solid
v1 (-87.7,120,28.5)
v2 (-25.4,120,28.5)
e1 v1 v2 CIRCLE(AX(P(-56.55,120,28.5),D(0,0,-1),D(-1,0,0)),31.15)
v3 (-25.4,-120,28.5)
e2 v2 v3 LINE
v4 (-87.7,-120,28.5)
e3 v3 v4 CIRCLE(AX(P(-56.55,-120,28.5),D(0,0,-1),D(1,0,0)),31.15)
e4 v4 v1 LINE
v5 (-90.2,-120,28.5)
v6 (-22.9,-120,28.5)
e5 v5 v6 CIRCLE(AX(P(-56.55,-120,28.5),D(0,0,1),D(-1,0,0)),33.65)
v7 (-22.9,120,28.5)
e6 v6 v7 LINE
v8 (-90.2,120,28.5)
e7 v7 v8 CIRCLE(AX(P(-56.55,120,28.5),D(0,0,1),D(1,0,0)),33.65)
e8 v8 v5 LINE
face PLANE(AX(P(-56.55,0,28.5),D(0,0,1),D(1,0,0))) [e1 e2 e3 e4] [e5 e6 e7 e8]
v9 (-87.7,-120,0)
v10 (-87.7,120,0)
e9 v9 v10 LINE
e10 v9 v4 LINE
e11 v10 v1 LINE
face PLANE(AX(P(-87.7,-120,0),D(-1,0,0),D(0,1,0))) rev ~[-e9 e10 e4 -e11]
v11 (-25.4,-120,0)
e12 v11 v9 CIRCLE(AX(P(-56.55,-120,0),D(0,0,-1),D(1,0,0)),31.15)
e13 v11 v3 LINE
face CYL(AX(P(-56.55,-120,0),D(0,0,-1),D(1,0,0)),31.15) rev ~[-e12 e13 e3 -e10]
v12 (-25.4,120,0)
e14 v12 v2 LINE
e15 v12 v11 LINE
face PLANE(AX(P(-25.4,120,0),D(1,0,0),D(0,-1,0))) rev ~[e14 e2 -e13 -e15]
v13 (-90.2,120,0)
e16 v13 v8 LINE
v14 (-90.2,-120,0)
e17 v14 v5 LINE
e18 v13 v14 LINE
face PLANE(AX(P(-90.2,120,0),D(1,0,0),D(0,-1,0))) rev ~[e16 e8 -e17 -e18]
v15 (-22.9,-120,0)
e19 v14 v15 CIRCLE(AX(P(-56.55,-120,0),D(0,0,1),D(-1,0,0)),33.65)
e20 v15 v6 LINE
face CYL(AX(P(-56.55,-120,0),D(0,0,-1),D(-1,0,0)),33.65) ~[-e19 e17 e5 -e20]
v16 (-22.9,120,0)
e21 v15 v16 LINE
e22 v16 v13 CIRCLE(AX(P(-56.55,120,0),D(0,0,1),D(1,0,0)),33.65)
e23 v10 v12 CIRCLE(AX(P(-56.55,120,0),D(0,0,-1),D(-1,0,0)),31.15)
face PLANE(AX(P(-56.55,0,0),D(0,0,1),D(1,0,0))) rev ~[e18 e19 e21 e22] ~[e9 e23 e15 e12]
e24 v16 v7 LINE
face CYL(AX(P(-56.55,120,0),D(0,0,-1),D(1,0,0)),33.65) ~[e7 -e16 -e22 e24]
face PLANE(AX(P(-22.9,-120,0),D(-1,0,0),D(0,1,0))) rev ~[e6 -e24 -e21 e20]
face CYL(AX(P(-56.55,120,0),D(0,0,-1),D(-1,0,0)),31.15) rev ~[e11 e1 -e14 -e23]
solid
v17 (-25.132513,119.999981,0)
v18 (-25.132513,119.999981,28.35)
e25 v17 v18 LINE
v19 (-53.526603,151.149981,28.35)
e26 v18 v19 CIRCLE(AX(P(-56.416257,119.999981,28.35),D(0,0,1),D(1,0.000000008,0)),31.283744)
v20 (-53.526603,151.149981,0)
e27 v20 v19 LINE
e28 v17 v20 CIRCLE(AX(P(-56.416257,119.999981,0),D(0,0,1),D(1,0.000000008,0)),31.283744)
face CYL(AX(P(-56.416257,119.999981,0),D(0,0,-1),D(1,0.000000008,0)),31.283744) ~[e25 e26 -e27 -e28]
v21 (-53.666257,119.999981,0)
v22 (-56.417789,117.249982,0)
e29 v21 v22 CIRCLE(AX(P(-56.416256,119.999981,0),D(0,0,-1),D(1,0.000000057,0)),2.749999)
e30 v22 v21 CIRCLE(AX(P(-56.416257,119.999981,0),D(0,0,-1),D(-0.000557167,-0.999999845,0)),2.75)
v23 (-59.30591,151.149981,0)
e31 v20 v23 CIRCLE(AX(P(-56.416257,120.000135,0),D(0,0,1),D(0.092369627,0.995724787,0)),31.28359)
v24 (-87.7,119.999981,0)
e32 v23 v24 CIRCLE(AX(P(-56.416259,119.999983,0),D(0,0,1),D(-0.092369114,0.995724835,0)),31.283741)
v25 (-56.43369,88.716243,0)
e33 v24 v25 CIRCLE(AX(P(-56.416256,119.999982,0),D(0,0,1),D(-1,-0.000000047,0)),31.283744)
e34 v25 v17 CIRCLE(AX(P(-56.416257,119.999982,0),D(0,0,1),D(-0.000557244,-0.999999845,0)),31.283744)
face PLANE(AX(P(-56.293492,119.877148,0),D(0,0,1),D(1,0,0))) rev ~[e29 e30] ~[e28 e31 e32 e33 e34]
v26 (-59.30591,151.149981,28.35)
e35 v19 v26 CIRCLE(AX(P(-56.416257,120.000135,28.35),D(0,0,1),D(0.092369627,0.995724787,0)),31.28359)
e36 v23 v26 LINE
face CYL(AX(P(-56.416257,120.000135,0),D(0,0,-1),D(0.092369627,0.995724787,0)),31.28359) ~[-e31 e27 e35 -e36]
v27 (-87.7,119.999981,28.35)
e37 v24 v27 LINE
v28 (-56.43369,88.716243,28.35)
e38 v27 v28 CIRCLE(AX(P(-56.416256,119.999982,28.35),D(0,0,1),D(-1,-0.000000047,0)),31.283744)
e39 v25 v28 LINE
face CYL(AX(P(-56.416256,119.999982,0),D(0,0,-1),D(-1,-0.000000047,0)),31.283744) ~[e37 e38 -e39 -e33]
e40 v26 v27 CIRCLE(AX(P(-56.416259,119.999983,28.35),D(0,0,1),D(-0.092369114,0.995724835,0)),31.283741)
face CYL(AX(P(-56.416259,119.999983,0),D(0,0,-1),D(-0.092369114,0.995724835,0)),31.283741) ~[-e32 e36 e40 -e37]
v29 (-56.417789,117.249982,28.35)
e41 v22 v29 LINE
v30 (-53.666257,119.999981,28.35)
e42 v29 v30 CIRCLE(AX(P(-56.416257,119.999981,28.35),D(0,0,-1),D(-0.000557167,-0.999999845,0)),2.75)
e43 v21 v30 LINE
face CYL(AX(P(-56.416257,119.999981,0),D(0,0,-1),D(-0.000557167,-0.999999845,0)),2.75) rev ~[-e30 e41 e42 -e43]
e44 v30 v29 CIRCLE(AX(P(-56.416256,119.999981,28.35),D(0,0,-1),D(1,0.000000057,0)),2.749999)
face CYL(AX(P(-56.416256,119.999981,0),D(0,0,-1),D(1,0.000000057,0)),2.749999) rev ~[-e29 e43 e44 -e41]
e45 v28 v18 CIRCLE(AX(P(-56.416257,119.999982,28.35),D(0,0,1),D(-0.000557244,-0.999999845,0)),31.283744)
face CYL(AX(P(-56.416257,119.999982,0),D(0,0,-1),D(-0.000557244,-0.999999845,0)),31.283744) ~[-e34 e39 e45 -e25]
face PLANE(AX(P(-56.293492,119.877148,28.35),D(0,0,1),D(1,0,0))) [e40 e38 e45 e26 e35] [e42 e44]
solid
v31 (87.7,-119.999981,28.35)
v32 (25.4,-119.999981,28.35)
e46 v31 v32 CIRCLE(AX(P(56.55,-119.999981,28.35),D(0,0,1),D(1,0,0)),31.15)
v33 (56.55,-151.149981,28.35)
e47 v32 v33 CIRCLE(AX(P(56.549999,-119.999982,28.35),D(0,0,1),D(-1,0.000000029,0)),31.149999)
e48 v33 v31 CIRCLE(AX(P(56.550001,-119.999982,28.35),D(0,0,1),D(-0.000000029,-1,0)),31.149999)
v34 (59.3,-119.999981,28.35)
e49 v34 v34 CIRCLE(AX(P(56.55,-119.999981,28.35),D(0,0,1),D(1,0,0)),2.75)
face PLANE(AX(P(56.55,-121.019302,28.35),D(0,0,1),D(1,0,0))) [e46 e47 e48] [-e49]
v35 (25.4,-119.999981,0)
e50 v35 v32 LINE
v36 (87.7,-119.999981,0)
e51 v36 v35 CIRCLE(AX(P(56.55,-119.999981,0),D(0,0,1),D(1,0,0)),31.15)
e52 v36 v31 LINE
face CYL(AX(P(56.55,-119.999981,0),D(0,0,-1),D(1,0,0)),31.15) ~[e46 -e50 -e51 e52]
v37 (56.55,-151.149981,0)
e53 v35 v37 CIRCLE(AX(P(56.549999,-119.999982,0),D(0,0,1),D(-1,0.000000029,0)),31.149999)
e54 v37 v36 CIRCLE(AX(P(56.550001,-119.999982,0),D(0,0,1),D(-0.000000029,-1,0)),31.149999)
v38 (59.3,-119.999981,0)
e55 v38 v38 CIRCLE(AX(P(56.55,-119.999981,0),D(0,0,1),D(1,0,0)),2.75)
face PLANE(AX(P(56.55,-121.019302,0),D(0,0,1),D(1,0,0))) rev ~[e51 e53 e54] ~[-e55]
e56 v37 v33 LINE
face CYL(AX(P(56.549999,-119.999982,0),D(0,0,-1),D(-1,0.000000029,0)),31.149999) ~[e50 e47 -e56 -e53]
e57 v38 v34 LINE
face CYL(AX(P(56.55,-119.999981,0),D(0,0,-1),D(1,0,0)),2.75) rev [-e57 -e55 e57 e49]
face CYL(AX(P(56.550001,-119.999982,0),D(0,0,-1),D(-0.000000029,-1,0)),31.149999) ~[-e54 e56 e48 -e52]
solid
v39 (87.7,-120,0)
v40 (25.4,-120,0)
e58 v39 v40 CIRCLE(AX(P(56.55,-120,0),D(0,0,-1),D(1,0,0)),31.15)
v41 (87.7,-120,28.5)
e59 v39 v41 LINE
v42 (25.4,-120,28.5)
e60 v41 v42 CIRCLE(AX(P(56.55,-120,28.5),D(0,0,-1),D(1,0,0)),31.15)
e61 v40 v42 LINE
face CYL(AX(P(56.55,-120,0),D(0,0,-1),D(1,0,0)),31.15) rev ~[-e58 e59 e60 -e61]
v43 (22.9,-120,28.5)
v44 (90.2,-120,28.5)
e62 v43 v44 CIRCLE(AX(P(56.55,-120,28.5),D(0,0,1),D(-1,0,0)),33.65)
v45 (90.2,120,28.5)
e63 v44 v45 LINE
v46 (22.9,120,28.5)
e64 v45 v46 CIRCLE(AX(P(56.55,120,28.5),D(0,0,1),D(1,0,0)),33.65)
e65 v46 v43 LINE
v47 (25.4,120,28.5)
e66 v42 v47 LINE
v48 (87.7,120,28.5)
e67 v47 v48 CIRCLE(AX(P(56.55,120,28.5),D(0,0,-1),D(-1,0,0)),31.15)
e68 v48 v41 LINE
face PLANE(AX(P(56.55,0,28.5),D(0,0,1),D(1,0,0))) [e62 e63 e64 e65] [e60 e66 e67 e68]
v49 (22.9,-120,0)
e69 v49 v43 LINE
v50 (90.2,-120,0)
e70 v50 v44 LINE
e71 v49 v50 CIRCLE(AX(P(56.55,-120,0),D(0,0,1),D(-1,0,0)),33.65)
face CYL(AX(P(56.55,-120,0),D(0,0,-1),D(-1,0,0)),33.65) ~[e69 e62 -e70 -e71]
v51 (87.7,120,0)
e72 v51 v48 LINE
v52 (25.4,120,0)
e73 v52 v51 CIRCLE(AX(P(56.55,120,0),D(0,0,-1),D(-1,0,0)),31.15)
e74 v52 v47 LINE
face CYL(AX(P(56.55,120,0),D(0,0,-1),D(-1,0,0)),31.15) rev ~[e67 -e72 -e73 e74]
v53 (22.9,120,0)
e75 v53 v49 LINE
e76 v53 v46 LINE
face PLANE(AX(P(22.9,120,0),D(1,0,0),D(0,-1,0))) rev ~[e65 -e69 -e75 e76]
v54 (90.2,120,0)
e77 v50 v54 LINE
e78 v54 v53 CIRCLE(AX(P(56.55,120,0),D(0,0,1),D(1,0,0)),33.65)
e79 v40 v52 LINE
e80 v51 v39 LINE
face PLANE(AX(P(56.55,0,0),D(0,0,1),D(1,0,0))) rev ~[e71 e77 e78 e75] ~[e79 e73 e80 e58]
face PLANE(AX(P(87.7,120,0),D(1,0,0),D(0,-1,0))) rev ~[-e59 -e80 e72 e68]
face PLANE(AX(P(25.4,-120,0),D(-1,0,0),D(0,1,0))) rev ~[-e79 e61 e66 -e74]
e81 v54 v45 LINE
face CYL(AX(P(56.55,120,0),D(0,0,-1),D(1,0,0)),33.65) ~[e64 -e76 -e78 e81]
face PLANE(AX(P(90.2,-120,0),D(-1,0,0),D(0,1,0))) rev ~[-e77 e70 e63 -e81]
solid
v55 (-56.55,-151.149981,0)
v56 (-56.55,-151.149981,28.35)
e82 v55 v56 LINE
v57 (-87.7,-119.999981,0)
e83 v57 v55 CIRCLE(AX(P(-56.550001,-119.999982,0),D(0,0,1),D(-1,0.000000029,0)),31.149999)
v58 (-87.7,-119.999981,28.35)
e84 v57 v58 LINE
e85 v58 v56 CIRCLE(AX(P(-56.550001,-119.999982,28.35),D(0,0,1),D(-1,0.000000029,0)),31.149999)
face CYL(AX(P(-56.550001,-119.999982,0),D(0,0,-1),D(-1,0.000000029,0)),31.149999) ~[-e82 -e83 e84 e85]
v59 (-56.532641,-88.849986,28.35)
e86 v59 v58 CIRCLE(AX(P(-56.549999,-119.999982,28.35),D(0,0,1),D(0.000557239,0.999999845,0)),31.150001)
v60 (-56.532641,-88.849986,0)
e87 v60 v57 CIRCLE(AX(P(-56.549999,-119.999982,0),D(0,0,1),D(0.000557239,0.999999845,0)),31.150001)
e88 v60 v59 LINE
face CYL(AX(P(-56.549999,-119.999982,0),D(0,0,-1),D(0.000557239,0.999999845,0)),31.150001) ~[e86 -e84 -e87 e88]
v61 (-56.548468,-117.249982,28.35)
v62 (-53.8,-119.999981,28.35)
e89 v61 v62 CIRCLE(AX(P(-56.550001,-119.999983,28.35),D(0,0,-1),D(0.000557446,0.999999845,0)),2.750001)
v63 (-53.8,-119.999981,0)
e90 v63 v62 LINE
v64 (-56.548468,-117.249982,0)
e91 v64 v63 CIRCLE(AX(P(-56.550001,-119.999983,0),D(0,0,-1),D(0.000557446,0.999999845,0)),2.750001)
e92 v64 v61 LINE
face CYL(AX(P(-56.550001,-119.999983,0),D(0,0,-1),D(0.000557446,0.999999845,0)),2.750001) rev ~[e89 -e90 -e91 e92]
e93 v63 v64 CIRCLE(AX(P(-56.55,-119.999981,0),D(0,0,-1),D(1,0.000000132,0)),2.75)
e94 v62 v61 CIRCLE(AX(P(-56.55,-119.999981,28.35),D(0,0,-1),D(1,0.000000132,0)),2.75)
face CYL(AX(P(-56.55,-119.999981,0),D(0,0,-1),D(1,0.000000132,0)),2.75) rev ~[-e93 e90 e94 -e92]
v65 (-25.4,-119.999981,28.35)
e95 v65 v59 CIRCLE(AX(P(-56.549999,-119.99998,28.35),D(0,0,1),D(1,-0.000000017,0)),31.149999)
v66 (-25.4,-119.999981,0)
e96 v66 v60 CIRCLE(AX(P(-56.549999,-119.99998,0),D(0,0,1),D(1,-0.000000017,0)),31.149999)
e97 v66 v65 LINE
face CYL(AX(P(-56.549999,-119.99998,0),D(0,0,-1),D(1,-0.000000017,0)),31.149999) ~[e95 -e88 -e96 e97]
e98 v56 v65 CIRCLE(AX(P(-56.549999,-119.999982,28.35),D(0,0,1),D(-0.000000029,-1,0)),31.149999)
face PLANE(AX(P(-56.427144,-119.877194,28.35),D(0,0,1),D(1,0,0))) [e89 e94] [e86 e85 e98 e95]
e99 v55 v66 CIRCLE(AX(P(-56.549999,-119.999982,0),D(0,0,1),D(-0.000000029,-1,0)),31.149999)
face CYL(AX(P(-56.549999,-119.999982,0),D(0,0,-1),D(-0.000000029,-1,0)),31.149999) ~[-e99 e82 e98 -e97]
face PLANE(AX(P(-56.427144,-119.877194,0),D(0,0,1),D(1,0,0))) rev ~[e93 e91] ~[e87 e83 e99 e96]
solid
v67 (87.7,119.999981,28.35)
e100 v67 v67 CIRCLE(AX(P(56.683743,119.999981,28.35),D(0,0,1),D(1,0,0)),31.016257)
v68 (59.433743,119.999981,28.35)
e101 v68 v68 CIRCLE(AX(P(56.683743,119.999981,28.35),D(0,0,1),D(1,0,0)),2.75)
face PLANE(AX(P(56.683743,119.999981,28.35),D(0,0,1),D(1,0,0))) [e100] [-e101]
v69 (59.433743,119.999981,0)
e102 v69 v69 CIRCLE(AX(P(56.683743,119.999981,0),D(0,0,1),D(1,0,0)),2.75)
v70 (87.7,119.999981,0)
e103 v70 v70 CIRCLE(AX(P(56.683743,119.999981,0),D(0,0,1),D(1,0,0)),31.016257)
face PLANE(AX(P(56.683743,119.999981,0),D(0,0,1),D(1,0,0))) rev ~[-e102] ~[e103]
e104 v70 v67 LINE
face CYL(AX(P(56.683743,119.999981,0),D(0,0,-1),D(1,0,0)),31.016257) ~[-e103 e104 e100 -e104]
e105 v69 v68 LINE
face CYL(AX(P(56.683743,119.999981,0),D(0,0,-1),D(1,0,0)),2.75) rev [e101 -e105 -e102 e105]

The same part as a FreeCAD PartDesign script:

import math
import FreeCAD as App
import Part
import Sketcher

V = App.Vector

doc = App.newDocument("Part")
body = doc.addObject("PartDesign::Body", "Body")
body.AllowCompound = True

sketch1 = body.newObject("Sketcher::SketchObject", "Sketch")
sketch1.AttachmentSupport = (doc.getObject("XY_Plane"), [""])
sketch1.MapMode = "FlatFace"
sketch1.addGeometry([
    Part.ArcOfCircle(Part.Circle(V(-56.416257, 119.999982, 0), V(0, 0, 1), 31.283744), math.radians(-90.031928), math.radians(-0.000003)),
    Part.ArcOfCircle(Part.Circle(V(-56.416257, 119.999981, 0), V(0, 0, 1), 31.283744), math.radians(0), math.radians(84.700081)),
    Part.ArcOfCircle(Part.Circle(V(-56.416257, 120.000135, 0), V(0, 0, 1), 31.28359), math.radians(84.700055), math.radians(95.299945)),
    Part.ArcOfCircle(Part.Circle(V(-56.416259, 119.999983, 0), V(0, 0, 1), 31.283741), math.radians(95.299915), math.radians(180.000003)),
    Part.ArcOfCircle(Part.Circle(V(-56.416256, 119.999982, 0), V(0, 0, 1), 31.283744), math.radians(-179.999997), math.radians(-90.031931)),
    Part.ArcOfCircle(Part.Circle(V(-56.416257, 119.999981, 0), V(0, 0, 1), 2.75), math.radians(-0.000008), math.radians(269.968077)),
    Part.ArcOfCircle(Part.Circle(V(-56.416256, 119.999981, 0), V(0, 0, 1), 2.749999), math.radians(-90.031934), math.radians(0.000003)),
    Part.Circle(V(56.683743, 119.999981, 0), V(0, 0, 1), 31.016257),
    Part.Circle(V(56.683743, 119.999981, 0), V(0, 0, 1), 2.75),
    Part.ArcOfCircle(Part.Circle(V(56.55, -119.999981, 0), V(0, 0, 1), 31.15), math.radians(0), math.radians(180)),
    Part.ArcOfCircle(Part.Circle(V(56.549999, -119.999982, 0), V(0, 0, 1), 31.149999), math.radians(179.999998), math.radians(270.000002)),
    Part.ArcOfCircle(Part.Circle(V(56.550001, -119.999982, 0), V(0, 0, 1), 31.149999), math.radians(-90.000002), math.radians(0.000002)),
    Part.Circle(V(56.55, -119.999981, 0), V(0, 0, 1), 2.75),
    Part.ArcOfCircle(Part.Circle(V(-56.549999, -119.99998, 0), V(0, 0, 1), 31.149999), math.radians(-0.000001), math.radians(89.968072)),
    Part.ArcOfCircle(Part.Circle(V(-56.549999, -119.999982, 0), V(0, 0, 1), 31.150001), math.radians(89.968073), math.radians(179.999998)),
    Part.ArcOfCircle(Part.Circle(V(-56.550001, -119.999982, 0), V(0, 0, 1), 31.149999), math.radians(179.999998), math.radians(270.000002)),
    Part.ArcOfCircle(Part.Circle(V(-56.549999, -119.999982, 0), V(0, 0, 1), 31.149999), math.radians(-90.000002), math.radians(0.000002)),
    Part.ArcOfCircle(Part.Circle(V(-56.550001, -119.999983, 0), V(0, 0, 1), 2.750001), math.radians(0.000032), math.radians(89.968061)),
    Part.ArcOfCircle(Part.Circle(V(-56.55, -119.999981, 0), V(0, 0, 1), 2.75), math.radians(89.968085), math.radians(360.000008)),
], False)
sketch1.addConstraint([
    Sketcher.Constraint("Coincident", 0, 2, 1, 1),
    Sketcher.Constraint("Coincident", 1, 2, 2, 1),
    Sketcher.Constraint("Coincident", 2, 2, 3, 1),
    Sketcher.Constraint("Coincident", 3, 2, 4, 1),
    Sketcher.Constraint("Coincident", 4, 2, 0, 1),
    Sketcher.Constraint("Coincident", 5, 1, 6, 2),
    Sketcher.Constraint("Coincident", 6, 1, 5, 2),
    Sketcher.Constraint("Coincident", 9, 2, 10, 1),
    Sketcher.Constraint("Coincident", 10, 2, 11, 1),
    Sketcher.Constraint("Coincident", 11, 2, 9, 1),
    Sketcher.Constraint("Coincident", 13, 2, 14, 1),
    Sketcher.Constraint("Coincident", 14, 2, 15, 1),
    Sketcher.Constraint("Coincident", 15, 2, 16, 1),
    Sketcher.Constraint("Coincident", 16, 2, 13, 1),
    Sketcher.Constraint("Coincident", 17, 1, 18, 2),
    Sketcher.Constraint("Coincident", 18, 1, 17, 2),
    Sketcher.Constraint("Coincident", 1, 3, 0, 3),
    Sketcher.Constraint("Coincident", 3, 3, 0, 3),
    Sketcher.Constraint("Coincident", 4, 3, 0, 3),
    Sketcher.Constraint("Coincident", 5, 3, 0, 3),
    Sketcher.Constraint("Coincident", 8, 3, 7, 3),
    Sketcher.Constraint("Coincident", 10, 3, 9, 3),
    Sketcher.Constraint("Coincident", 12, 3, 9, 3),
    Sketcher.Constraint("Coincident", 14, 3, 13, 3),
    Sketcher.Constraint("Coincident", 15, 3, 13, 3),
    Sketcher.Constraint("Coincident", 17, 3, 13, 3),
    Sketcher.Constraint("Diameter", 8, 5.5),
    Sketcher.Constraint("Diameter", 12, 5.5),
    Sketcher.Constraint("Radius", 5, 2.75),
    Sketcher.Constraint("Radius", 6, 2.749999),
    Sketcher.Constraint("Radius", 9, 31.15),
    Sketcher.Constraint("Radius", 11, 31.149999),
    Sketcher.Constraint("Radius", 13, 31.149999),
    Sketcher.Constraint("Radius", 16, 31.149999),
    Sketcher.Constraint("Radius", 17, 2.750001),
    Sketcher.Constraint("Radius", 18, 2.75),
    Sketcher.Constraint("DistanceX", 3, 2, -1, 1, 87.7),
    Sketcher.Constraint("DistanceX", -1, 1, 9, 2, 25.4),
    Sketcher.Constraint("DistanceX", 14, 2, -1, 1, 87.7),
    Sketcher.Constraint("DistanceX", 4, 3, 7, 3, 113.099999),
    Sketcher.Constraint("DistanceX", -1, 1, 10, 2, 56.55),
    Sketcher.Constraint("DistanceX", 15, 2, -1, 1, 56.55),
    Sketcher.Constraint("Radius", 2, 31.28359),
    Sketcher.Constraint("Radius", 3, 31.283741),
    Sketcher.Constraint("DistanceY", 4, 3, 1, 2, 31.149999),
    Sketcher.Constraint("DistanceY", 3, 3, 2, 2, 31.149998),
    Sketcher.Constraint("DistanceY", 10, 2, 9, 2, 31.15),
    Sketcher.Constraint("DistanceY", 10, 2, 11, 2, 31.15),
    Sketcher.Constraint("Diameter", 7, 62.032514),
    Sketcher.Constraint("DistanceY", -1, 1, 1, 3, 119.999981),
    Sketcher.Constraint("DistanceY", -1, 1, 7, 3, 119.999981),
    Sketcher.Constraint("DistanceY", 9, 3, -1, 1, 119.999981),
    Sketcher.Constraint("DistanceY", 13, 3, -1, 1, 119.99998),
    Sketcher.Constraint("DistanceY", -1, 1, 0, 2, 119.999981),
    Sketcher.Constraint("DistanceY", -1, 1, 3, 2, 119.999981),
    Sketcher.Constraint("DistanceX", 4, 2, -1, 1, 56.43369),
    Sketcher.Constraint("DistanceY", -1, 1, 5, 1, 119.999981),
    Sketcher.Constraint("DistanceX", 6, 1, -1, 1, 56.417789),
    Sketcher.Constraint("DistanceX", 13, 2, -1, 1, 56.532641),
    Sketcher.Constraint("DistanceY", 14, 2, -1, 1, 119.999981),
    Sketcher.Constraint("DistanceY", 16, 2, -1, 1, 119.999981),
    Sketcher.Constraint("DistanceY", 17, 1, -1, 1, 119.999981),
    Sketcher.Constraint("DistanceX", 18, 1, -1, 1, 56.548468),
])
pad1 = body.newObject("PartDesign::Pad", "Pad")
pad1.Profile = sketch1
pad1.Length = 28.35
body2 = doc.addObject("PartDesign::Body", "Body001")
body2.AllowCompound = True

sketch2 = body2.newObject("Sketcher::SketchObject", "Sketch001")
sketch2.AttachmentSupport = (doc.getObject("XY_Plane001"), [""])
sketch2.MapMode = "FlatFace"
sketch2.addGeometry([
    Part.LineSegment(V(-22.9, -120, 0), V(-22.9, 120, 0)),
    Part.ArcOfCircle(Part.Circle(V(-56.55, 120, 0), V(0, 0, 1), 33.65), math.radians(0), math.radians(180)),
    Part.LineSegment(V(-90.2, 120, 0), V(-90.2, -120, 0)),
    Part.ArcOfCircle(Part.Circle(V(-56.55, -120, 0), V(0, 0, 1), 33.65), math.radians(180), math.radians(360)),
    Part.LineSegment(V(-87.7, -120, 0), V(-87.7, 120, 0)),
    Part.ArcOfCircle(Part.Circle(V(-56.55, 120, 0), V(0, 0, 1), 31.15), math.radians(0), math.radians(180)),
    Part.LineSegment(V(-25.4, 120, 0), V(-25.4, -120, 0)),
    Part.ArcOfCircle(Part.Circle(V(-56.55, -120, 0), V(0, 0, 1), 31.15), math.radians(180), math.radians(360)),
    Part.ArcOfCircle(Part.Circle(V(56.55, 120, 0), V(0, 0, 1), 33.65), math.radians(0), math.radians(180)),
    Part.LineSegment(V(22.9, 120, 0), V(22.9, -120, 0)),
    Part.ArcOfCircle(Part.Circle(V(56.55, -120, 0), V(0, 0, 1), 33.65), math.radians(180), math.radians(360)),
    Part.LineSegment(V(90.2, -120, 0), V(90.2, 120, 0)),
    Part.ArcOfCircle(Part.Circle(V(56.55, -120, 0), V(0, 0, 1), 31.15), math.radians(180), math.radians(360)),
    Part.LineSegment(V(25.4, -120, 0), V(25.4, 120, 0)),
    Part.ArcOfCircle(Part.Circle(V(56.55, 120, 0), V(0, 0, 1), 31.15), math.radians(0), math.radians(180)),
    Part.LineSegment(V(87.7, 120, 0), V(87.7, -120, 0)),
], False)
sketch2.addConstraint([
    Sketcher.Constraint("Tangent", 0, 2, 1, 1),
    Sketcher.Constraint("Tangent", 1, 2, 2, 1),
    Sketcher.Constraint("Tangent", 2, 2, 3, 1),
    Sketcher.Constraint("Tangent", 3, 2, 0, 1),
    Sketcher.Constraint("Tangent", 4, 2, 5, 2),
    Sketcher.Constraint("Tangent", 5, 1, 6, 1),
    Sketcher.Constraint("Tangent", 6, 2, 7, 2),
    Sketcher.Constraint("Tangent", 7, 1, 4, 1),
    Sketcher.Constraint("Tangent", 8, 2, 9, 1),
    Sketcher.Constraint("Tangent", 9, 2, 10, 1),
    Sketcher.Constraint("Tangent", 10, 2, 11, 1),
    Sketcher.Constraint("Tangent", 11, 2, 8, 1),
    Sketcher.Constraint("Tangent", 12, 1, 13, 1),
    Sketcher.Constraint("Tangent", 13, 2, 14, 2),
    Sketcher.Constraint("Tangent", 14, 1, 15, 1),
    Sketcher.Constraint("Tangent", 15, 2, 12, 2),
    Sketcher.Constraint("Vertical", 0),
    Sketcher.Constraint("Vertical", 2),
    Sketcher.Constraint("Vertical", 4),
    Sketcher.Constraint("Vertical", 6),
    Sketcher.Constraint("Vertical", 9),
    Sketcher.Constraint("Vertical", 11),
    Sketcher.Constraint("Vertical", 13),
    Sketcher.Constraint("Vertical", 15),
    Sketcher.Constraint("Coincident", 5, 3, 1, 3),
    Sketcher.Constraint("Coincident", 12, 3, 10, 3),
    Sketcher.Constraint("Equal", 3, 8),
    Sketcher.Constraint("Equal", 7, 12),
    Sketcher.Constraint("Symmetric", 3, 3, 8, 3, -1, 1),
    Sketcher.Constraint("Horizontal", 5, 3, 8, 3),
    Sketcher.Constraint("Horizontal", 7, 3, 10, 3),
    Sketcher.Constraint("Horizontal", 5, 3, 14, 3),
    Sketcher.Constraint("Horizontal", 12, 3, 2, 2),
    Sketcher.Constraint("DistanceY", 0, 1, 0, 2, 240.0),
    Sketcher.Constraint("Radius", 1, 33.65),
    Sketcher.Constraint("Radius", 5, 31.15),
    Sketcher.Constraint("DistanceX", 0, 2, -1, 1, 22.9),
])
pad2 = body2.newObject("PartDesign::Pad", "Pad001")
pad2.Profile = sketch2
pad2.Length = 28.5

doc.recompute()
